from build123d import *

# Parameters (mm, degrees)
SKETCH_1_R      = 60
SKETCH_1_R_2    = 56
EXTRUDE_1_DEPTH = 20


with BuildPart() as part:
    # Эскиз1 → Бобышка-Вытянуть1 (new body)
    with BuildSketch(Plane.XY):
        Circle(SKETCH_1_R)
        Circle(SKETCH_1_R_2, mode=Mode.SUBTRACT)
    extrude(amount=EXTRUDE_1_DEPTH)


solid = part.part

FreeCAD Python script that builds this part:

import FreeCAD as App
import Part
import Sketcher

V = App.Vector
Q = App.Units.Quantity

doc = App.newDocument("Part")
body = doc.addObject("PartDesign::Body", "Body")

# Sketch on XY plane
sketch1 = body.newObject("Sketcher::SketchObject", "Sketch")
sketch1.AttachmentSupport = (doc.getObject("XY_Plane"), [""])
sketch1.MapMode = "FlatFace"
sketch1.addGeometry([
    Part.Circle(V(0, 0, 0), V(0, 0, 1), 60),
    Part.Circle(V(0, 0, 0), V(0, 0, 1), 56),
], False)
sketch1.addConstraint([
    Sketcher.Constraint("Coincident", 0, 3, -1, 1),
    Sketcher.Constraint("Coincident", 1, 3, -1, 1),
    Sketcher.Constraint("Diameter", 0, Q("120 mm")),
    Sketcher.Constraint("Diameter", 1, Q("112 mm")),
])
pad1 = body.newObject("PartDesign::Pad", "Pad")
pad1.Profile = sketch1
pad1.Length = 20

doc.recompute()
